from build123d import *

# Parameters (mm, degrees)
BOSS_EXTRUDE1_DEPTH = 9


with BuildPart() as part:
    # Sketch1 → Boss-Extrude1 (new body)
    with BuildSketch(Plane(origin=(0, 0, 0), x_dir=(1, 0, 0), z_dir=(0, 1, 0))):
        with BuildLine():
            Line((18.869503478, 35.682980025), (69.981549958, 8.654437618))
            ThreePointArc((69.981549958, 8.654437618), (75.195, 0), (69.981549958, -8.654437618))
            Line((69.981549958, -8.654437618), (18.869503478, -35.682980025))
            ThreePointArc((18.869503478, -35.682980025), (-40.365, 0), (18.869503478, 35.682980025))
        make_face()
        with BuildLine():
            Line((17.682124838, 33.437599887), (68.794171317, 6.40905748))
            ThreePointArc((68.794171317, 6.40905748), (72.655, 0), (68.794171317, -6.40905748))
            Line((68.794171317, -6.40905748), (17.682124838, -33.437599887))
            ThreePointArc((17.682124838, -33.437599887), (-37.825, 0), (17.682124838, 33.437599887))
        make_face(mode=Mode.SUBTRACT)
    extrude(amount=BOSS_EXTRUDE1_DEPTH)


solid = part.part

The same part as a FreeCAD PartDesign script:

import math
import FreeCAD as App
import Part
import Sketcher
from FreeCAD import Vector
Q = App.Units.Quantity

doc = App.newDocument("Part")
body = doc.addObject("PartDesign::Body", "Body")

sketch1 = body.newObject("Sketcher::SketchObject", "Sketch")
sketch1.AttachmentSupport = (doc.getObject("XZ_Plane"), [""])
sketch1.MapMode = "FlatFace"
sketch1.addGeometry(Part.LineSegment(Vector(70, -9, 0), Vector(19, -36, 0)), False)
sketch1.addGeometry(Part.ArcOfCircle(Part.Circle(Vector(0, 0, 0), Vector(0, 0, 1), 40), math.radians(62), math.radians(298)), False)
sketch1.addGeometry(Part.LineSegment(Vector(19, 36, 0), Vector(70, 9, 0)), False)
sketch1.addGeometry(Part.ArcOfCircle(Part.Circle(Vector(65, 0, 0), Vector(0, 0, 1), 10), math.radians(-62), math.radians(62)), False)
sketch1.addGeometry(Part.LineSegment(Vector(18, -33, 0), Vector(69, -6, 0)), False)
sketch1.addGeometry(Part.ArcOfCircle(Part.Circle(Vector(65, 0, 0), Vector(0, 0, 1), 7), math.radians(-62), math.radians(62)), False)
sketch1.addGeometry(Part.LineSegment(Vector(69, 6, 0), Vector(18, 33, 0)), False)
sketch1.addGeometry(Part.ArcOfCircle(Part.Circle(Vector(0, 0, 0), Vector(0, 0, 1), 38), math.radians(62), math.radians(298)), False)
sketch1.addConstraint(Sketcher.Constraint("Tangent", 0, 2, 1, 2))
sketch1.addConstraint(Sketcher.Constraint("Tangent", 1, 1, 2, 1))
sketch1.addConstraint(Sketcher.Constraint("Tangent", 2, 2, 3, 2))
sketch1.addConstraint(Sketcher.Constraint("Tangent", 3, 1, 0, 1))
sketch1.addConstraint(Sketcher.Constraint("Tangent", 4, 2, 5, 1))
sketch1.addConstraint(Sketcher.Constraint("Tangent", 5, 2, 6, 1))
sketch1.addConstraint(Sketcher.Constraint("Tangent", 6, 2, 7, 1))
sketch1.addConstraint(Sketcher.Constraint("Tangent", 7, 2, 4, 1))
sketch1.addConstraint(Sketcher.Constraint("Coincident", 1, 3, -1, 1))
sketch1.addConstraint(Sketcher.Constraint("Coincident", 7, 3, -1, 1))
sketch1.addConstraint(Sketcher.Constraint("Coincident", 5, 3, 3, 3))
sketch1.addConstraint(Sketcher.Constraint("PointOnObject", 3, 3, -1))
sketch1.addConstraint(Sketcher.Constraint("Parallel", 0, 4))
sketch1.addConstraint(Sketcher.Constraint("Radius", 3, Q("9.79 mm")))
sketch1.addConstraint(Sketcher.Constraint("Radius", 5, Q("7.25 mm")))
sketch1.addConstraint(Sketcher.Constraint("Radius", 1, Q("40.365 mm")))
sketch1.addConstraint(Sketcher.Constraint("DistanceX", -1, 1, 3, 3, Q("65.405 mm")))
pad1 = body.newObject("PartDesign::Pad", "Pad")
pad1.Profile = sketch1
pad1.Length = 9
pad1.Reversed = True

doc.recompute()
